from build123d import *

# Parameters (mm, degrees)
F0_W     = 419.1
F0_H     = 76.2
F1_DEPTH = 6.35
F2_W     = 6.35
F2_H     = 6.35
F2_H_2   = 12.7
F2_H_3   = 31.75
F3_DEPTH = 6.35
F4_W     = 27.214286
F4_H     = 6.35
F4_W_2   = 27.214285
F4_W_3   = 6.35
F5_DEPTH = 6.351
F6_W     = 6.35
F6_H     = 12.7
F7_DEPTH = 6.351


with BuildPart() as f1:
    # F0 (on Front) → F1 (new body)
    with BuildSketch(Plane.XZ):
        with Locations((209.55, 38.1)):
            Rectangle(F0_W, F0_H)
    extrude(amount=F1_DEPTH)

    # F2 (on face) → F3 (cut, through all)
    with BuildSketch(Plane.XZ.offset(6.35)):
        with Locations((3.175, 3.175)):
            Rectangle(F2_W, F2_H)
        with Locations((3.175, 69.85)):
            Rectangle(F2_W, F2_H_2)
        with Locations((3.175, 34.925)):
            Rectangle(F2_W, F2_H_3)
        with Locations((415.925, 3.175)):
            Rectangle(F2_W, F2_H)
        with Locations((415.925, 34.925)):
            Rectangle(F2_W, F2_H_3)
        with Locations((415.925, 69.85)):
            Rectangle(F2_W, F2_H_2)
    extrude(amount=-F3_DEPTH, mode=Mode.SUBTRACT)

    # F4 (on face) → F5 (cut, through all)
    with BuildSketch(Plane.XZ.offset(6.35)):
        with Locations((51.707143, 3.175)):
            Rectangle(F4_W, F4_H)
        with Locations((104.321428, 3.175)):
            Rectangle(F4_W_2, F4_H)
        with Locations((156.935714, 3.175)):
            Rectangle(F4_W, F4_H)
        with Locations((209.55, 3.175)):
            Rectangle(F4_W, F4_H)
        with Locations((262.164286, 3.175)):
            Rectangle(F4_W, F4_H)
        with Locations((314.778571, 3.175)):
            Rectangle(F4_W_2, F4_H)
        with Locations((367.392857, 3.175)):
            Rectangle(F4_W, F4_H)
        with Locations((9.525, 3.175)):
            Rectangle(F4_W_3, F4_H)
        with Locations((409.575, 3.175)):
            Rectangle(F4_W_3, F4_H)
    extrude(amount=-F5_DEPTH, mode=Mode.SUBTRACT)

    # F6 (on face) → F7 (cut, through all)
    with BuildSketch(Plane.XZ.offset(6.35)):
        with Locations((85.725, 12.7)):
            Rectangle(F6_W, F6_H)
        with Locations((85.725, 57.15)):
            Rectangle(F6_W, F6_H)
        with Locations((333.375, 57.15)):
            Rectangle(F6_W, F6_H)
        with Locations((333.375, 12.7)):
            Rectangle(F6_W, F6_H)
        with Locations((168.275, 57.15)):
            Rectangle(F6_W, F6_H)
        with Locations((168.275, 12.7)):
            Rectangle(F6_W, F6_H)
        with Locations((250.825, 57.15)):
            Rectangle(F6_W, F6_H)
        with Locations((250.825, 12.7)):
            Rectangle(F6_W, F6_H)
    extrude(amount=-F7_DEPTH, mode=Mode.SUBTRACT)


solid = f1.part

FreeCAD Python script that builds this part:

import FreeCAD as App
import Part
import Sketcher
from FreeCAD import Vector
Q = App.Units.Quantity

doc = App.newDocument("Part")
body = doc.addObject("PartDesign::Body", "Body")

# Sketch on XZ plane
sketch1 = body.newObject("Sketcher::SketchObject", "Sketch")
sketch1.AttachmentSupport = (doc.getObject("XZ_Plane"), [""])
sketch1.MapMode = "FlatFace"
sketch1.addGeometry([
    Part.LineSegment(Vector(0, 76, 0), Vector(0, 0, 0)),
    Part.LineSegment(Vector(0, 0, 0), Vector(419, 0, 0)),
    Part.LineSegment(Vector(419, 0, 0), Vector(419, 76, 0)),
    Part.LineSegment(Vector(419, 76, 0), Vector(0, 76, 0)),
], False)
sketch1.addConstraint([
    Sketcher.Constraint("Coincident", 0, 2, 1, 1),
    Sketcher.Constraint("Coincident", 1, 2, 2, 1),
    Sketcher.Constraint("Coincident", 2, 2, 3, 1),
    Sketcher.Constraint("Coincident", 3, 2, 0, 1),
    Sketcher.Constraint("Vertical", 0),
    Sketcher.Constraint("Horizontal", 1),
    Sketcher.Constraint("Vertical", 2),
    Sketcher.Constraint("Horizontal", 3),
    Sketcher.Constraint("Coincident", 0, 2, -1, 1),
    Sketcher.Constraint("DistanceY", 0, 2, 0, 1, Q("3 in")),
    Sketcher.Constraint("DistanceX", 1, 1, 1, 2, Q("16.5 in")),
])
pad1 = body.newObject("PartDesign::Pad", "Pad")
pad1.Profile = sketch1
pad1.Length = Q("0.25 in")

# Sketch on XZ plane
sketch2 = body.newObject("Sketcher::SketchObject", "Sketch001")
sketch2.AttachmentSupport = (doc.getObject("XZ_Plane"), [""])
sketch2.MapMode = "FlatFace"
sketch2.AttachmentOffset = App.Placement(Vector(0, 0, 0.25 * 25.4), App.Rotation())
sketch2.addGeometry([
    Part.LineSegment(Vector(0, 6, 0), Vector(0, 0, 0)),  # 0
    Part.LineSegment(Vector(0, 0, 0), Vector(6, 0, 0)),  # 1
    Part.LineSegment(Vector(6, 0, 0), Vector(6, 6, 0)),  # 2
    Part.LineSegment(Vector(6, 6, 0), Vector(0, 6, 0)),  # 3
    Part.LineSegment(Vector(0, 76, 0), Vector(0, 64, 0)),  # 4
    Part.LineSegment(Vector(0, 64, 0), Vector(6, 64, 0)),  # 5
    Part.LineSegment(Vector(6, 64, 0), Vector(6, 76, 0)),  # 6
    Part.LineSegment(Vector(6, 76, 0), Vector(0, 76, 0)),  # 7
    Part.LineSegment(Vector(0, 51, 0), Vector(0, 19, 0)),  # 8
    Part.LineSegment(Vector(0, 19, 0), Vector(6, 19, 0)),  # 9
    Part.LineSegment(Vector(6, 19, 0), Vector(6, 51, 0)),  # 10
    Part.LineSegment(Vector(6, 51, 0), Vector(0, 51, 0)),  # 11
    Part.LineSegment(Vector(413, 6, 0), Vector(413, 0, 0)),  # 12
    Part.LineSegment(Vector(413, 0, 0), Vector(419, 0, 0)),  # 13
    Part.LineSegment(Vector(419, 0, 0), Vector(419, 6, 0)),  # 14
    Part.LineSegment(Vector(419, 6, 0), Vector(413, 6, 0)),  # 15
    Part.LineSegment(Vector(413, 51, 0), Vector(413, 19, 0)),  # 16
    Part.LineSegment(Vector(413, 19, 0), Vector(419, 19, 0)),  # 17
    Part.LineSegment(Vector(419, 19, 0), Vector(419, 51, 0)),  # 18
    Part.LineSegment(Vector(419, 51, 0), Vector(413, 51, 0)),  # 19
    Part.LineSegment(Vector(413, 76, 0), Vector(413, 64, 0)),  # 20
    Part.LineSegment(Vector(413, 64, 0), Vector(419, 64, 0)),  # 21
    Part.LineSegment(Vector(419, 64, 0), Vector(419, 76, 0)),  # 22
    Part.LineSegment(Vector(419, 76, 0), Vector(413, 76, 0)),  # 23
], False)
sketch2.addConstraint([
    Sketcher.Constraint("Coincident", 0, 2, 1, 1),
    Sketcher.Constraint("Coincident", 1, 2, 2, 1),
    Sketcher.Constraint("Coincident", 2, 2, 3, 1),
    Sketcher.Constraint("Coincident", 3, 2, 0, 1),
    Sketcher.Constraint("Coincident", 4, 2, 5, 1),
    Sketcher.Constraint("Coincident", 5, 2, 6, 1),
    Sketcher.Constraint("Coincident", 6, 2, 7, 1),
    Sketcher.Constraint("Coincident", 7, 2, 4, 1),
    Sketcher.Constraint("Coincident", 8, 2, 9, 1),
    Sketcher.Constraint("Coincident", 9, 2, 10, 1),
    Sketcher.Constraint("Coincident", 10, 2, 11, 1),
    Sketcher.Constraint("Coincident", 11, 2, 8, 1),
    Sketcher.Constraint("Coincident", 12, 2, 13, 1),
    Sketcher.Constraint("Coincident", 13, 2, 14, 1),
    Sketcher.Constraint("Coincident", 14, 2, 15, 1),
    Sketcher.Constraint("Coincident", 15, 2, 12, 1),
    Sketcher.Constraint("Coincident", 16, 2, 17, 1),
    Sketcher.Constraint("Coincident", 17, 2, 18, 1),
    Sketcher.Constraint("Coincident", 18, 2, 19, 1),
    Sketcher.Constraint("Coincident", 19, 2, 16, 1),
    Sketcher.Constraint("Coincident", 20, 2, 21, 1),
    Sketcher.Constraint("Coincident", 21, 2, 22, 1),
    Sketcher.Constraint("Coincident", 22, 2, 23, 1),
    Sketcher.Constraint("Coincident", 23, 2, 20, 1),
    Sketcher.Constraint("Vertical", 0),
    Sketcher.Constraint("Horizontal", 1),
    Sketcher.Constraint("Vertical", 2),
    Sketcher.Constraint("Horizontal", 3),
    Sketcher.Constraint("Vertical", 4),
    Sketcher.Constraint("Horizontal", 5),
    Sketcher.Constraint("Vertical", 6),
    Sketcher.Constraint("Horizontal", 7),
    Sketcher.Constraint("Vertical", 8),
    Sketcher.Constraint("Horizontal", 9),
    Sketcher.Constraint("Vertical", 10),
    Sketcher.Constraint("Horizontal", 11),
    Sketcher.Constraint("Vertical", 12),
    Sketcher.Constraint("Horizontal", 13),
    Sketcher.Constraint("Vertical", 14),
    Sketcher.Constraint("Horizontal", 15),
    Sketcher.Constraint("Vertical", 16),
    Sketcher.Constraint("Horizontal", 17),
    Sketcher.Constraint("Vertical", 18),
    Sketcher.Constraint("Horizontal", 19),
    Sketcher.Constraint("Vertical", 20),
    Sketcher.Constraint("Horizontal", 21),
    Sketcher.Constraint("Vertical", 22),
    Sketcher.Constraint("Horizontal", 23),
    Sketcher.Constraint("Coincident", 0, 2, -1, 1),
    Sketcher.Constraint("PointOnObject", 4, 2, -2),
    Sketcher.Constraint("PointOnObject", 8, 2, -2),
    Sketcher.Constraint("PointOnObject", 12, 2, -1),
    Sketcher.Constraint("Horizontal", 3, 2, 14, 2),
    Sketcher.Constraint("Horizontal", 9, 2, 16, 2),
    Sketcher.Constraint("Horizontal", 11, 2, 18, 2),
    Sketcher.Constraint("Horizontal", 5, 2, 20, 2),
    Sketcher.Constraint("Horizontal", 7, 2, 22, 2),
    Sketcher.Constraint("Vertical", 2, 2, 5, 2),
    Sketcher.Constraint("Vertical", 6, 2, 9, 2),
    Sketcher.Constraint("Vertical", 15, 2, 16, 2),
    Sketcher.Constraint("Vertical", 14, 2, 17, 2),
    Sketcher.Constraint("Vertical", 19, 2, 20, 2),
    Sketcher.Constraint("Vertical", 18, 2, 21, 2),
    Sketcher.Constraint("Equal", 11, 13),
    Sketcher.Constraint("Equal", 23, 0),
    Sketcher.Constraint("DistanceY", 4, 2, 4, 1, Q("0.5 in")),
    Sketcher.Constraint("DistanceY", -1, 1, 6, 2, Q("3 in")),
    Sketcher.Constraint("DistanceY", -1, 1, 10, 2, Q("2 in")),
    Sketcher.Constraint("DistanceX", 1, 2, 12, 2, Q("16 in")),
    Sketcher.Constraint("DistanceX", 1, 1, 1, 2, Q("0.25 in")),
    Sketcher.Constraint("DistanceY", 8, 2, 8, 1, Q("1.25 in")),
])
pocket1 = body.newObject("PartDesign::Pocket", "Pocket")
pocket1.Profile = sketch2
pocket1.Type = "ThroughAll"

# Sketch on XZ plane
sketch3 = body.newObject("Sketcher::SketchObject", "Sketch002")
sketch3.AttachmentSupport = (doc.getObject("XZ_Plane"), [""])
sketch3.MapMode = "FlatFace"
sketch3.AttachmentOffset = App.Placement(Vector(0, 0, 0.25 * 25.4), App.Rotation())
sketch3.addGeometry([
    Part.LineSegment(Vector(38, 6, 0), Vector(38, 0, 0)),  # 0
    Part.LineSegment(Vector(38, 0, 0), Vector(65, 0, 0)),  # 1
    Part.LineSegment(Vector(65, 0, 0), Vector(65, 6, 0)),  # 2
    Part.LineSegment(Vector(65, 6, 0), Vector(38, 6, 0)),  # 3
    Part.LineSegment(Vector(91, 6, 0), Vector(91, 0, 0)),  # 4
    Part.LineSegment(Vector(91, 0, 0), Vector(118, 0, 0)),  # 5
    Part.LineSegment(Vector(118, 0, 0), Vector(118, 6, 0)),  # 6
    Part.LineSegment(Vector(118, 6, 0), Vector(91, 6, 0)),  # 7
    Part.LineSegment(Vector(143, 6, 0), Vector(143, 0, 0)),  # 8
    Part.LineSegment(Vector(143, 0, 0), Vector(171, 0, 0)),  # 9
    Part.LineSegment(Vector(171, 0, 0), Vector(171, 6, 0)),  # 10
    Part.LineSegment(Vector(171, 6, 0), Vector(143, 6, 0)),  # 11
    Part.LineSegment(Vector(196, 6, 0), Vector(196, 0, 0)),  # 12
    Part.LineSegment(Vector(196, 0, 0), Vector(223, 0, 0)),  # 13
    Part.LineSegment(Vector(223, 0, 0), Vector(223, 6, 0)),  # 14
    Part.LineSegment(Vector(223, 6, 0), Vector(196, 6, 0)),  # 15
    Part.LineSegment(Vector(249, 6, 0), Vector(249, 0, 0)),  # 16
    Part.LineSegment(Vector(249, 0, 0), Vector(276, 0, 0)),  # 17
    Part.LineSegment(Vector(276, 0, 0), Vector(276, 6, 0)),  # 18
    Part.LineSegment(Vector(276, 6, 0), Vector(249, 6, 0)),  # 19
    Part.LineSegment(Vector(301, 6, 0), Vector(301, 0, 0)),  # 20
    Part.LineSegment(Vector(301, 0, 0), Vector(328, 0, 0)),  # 21
    Part.LineSegment(Vector(328, 0, 0), Vector(328, 6, 0)),  # 22
    Part.LineSegment(Vector(328, 6, 0), Vector(301, 6, 0)),  # 23
    Part.LineSegment(Vector(354, 6, 0), Vector(354, 0, 0)),  # 24
    Part.LineSegment(Vector(354, 0, 0), Vector(381, 0, 0)),  # 25
    Part.LineSegment(Vector(381, 0, 0), Vector(381, 6, 0)),  # 26
    Part.LineSegment(Vector(381, 6, 0), Vector(354, 6, 0)),  # 27
    Part.LineSegment(Vector(6, 6, 0), Vector(6, 0, 0)),  # 28
    Part.LineSegment(Vector(6, 0, 0), Vector(13, 0, 0)),  # 29
    Part.LineSegment(Vector(13, 0, 0), Vector(13, 6, 0)),  # 30
    Part.LineSegment(Vector(13, 6, 0), Vector(6, 6, 0)),  # 31
    Part.LineSegment(Vector(406, 6, 0), Vector(406, 0, 0)),  # 32
    Part.LineSegment(Vector(406, 0, 0), Vector(413, 0, 0)),  # 33
    Part.LineSegment(Vector(413, 0, 0), Vector(413, 6, 0)),  # 34
    Part.LineSegment(Vector(413, 6, 0), Vector(406, 6, 0)),  # 35
], False)
sketch3.addConstraint([
    Sketcher.Constraint("Coincident", 0, 2, 1, 1),
    Sketcher.Constraint("Coincident", 1, 2, 2, 1),
    Sketcher.Constraint("Coincident", 2, 2, 3, 1),
    Sketcher.Constraint("Coincident", 3, 2, 0, 1),
    Sketcher.Constraint("Coincident", 4, 2, 5, 1),
    Sketcher.Constraint("Coincident", 5, 2, 6, 1),
    Sketcher.Constraint("Coincident", 6, 2, 7, 1),
    Sketcher.Constraint("Coincident", 7, 2, 4, 1),
    Sketcher.Constraint("Coincident", 8, 2, 9, 1),
    Sketcher.Constraint("Coincident", 9, 2, 10, 1),
    Sketcher.Constraint("Coincident", 10, 2, 11, 1),
    Sketcher.Constraint("Coincident", 11, 2, 8, 1),
    Sketcher.Constraint("Coincident", 12, 2, 13, 1),
    Sketcher.Constraint("Coincident", 13, 2, 14, 1),
    Sketcher.Constraint("Coincident", 14, 2, 15, 1),
    Sketcher.Constraint("Coincident", 15, 2, 12, 1),
    Sketcher.Constraint("Coincident", 16, 2, 17, 1),
    Sketcher.Constraint("Coincident", 17, 2, 18, 1),
    Sketcher.Constraint("Coincident", 18, 2, 19, 1),
    Sketcher.Constraint("Coincident", 19, 2, 16, 1),
    Sketcher.Constraint("Coincident", 20, 2, 21, 1),
    Sketcher.Constraint("Coincident", 21, 2, 22, 1),
    Sketcher.Constraint("Coincident", 22, 2, 23, 1),
    Sketcher.Constraint("Coincident", 23, 2, 20, 1),
    Sketcher.Constraint("Coincident", 24, 2, 25, 1),
    Sketcher.Constraint("Coincident", 25, 2, 26, 1),
    Sketcher.Constraint("Coincident", 26, 2, 27, 1),
    Sketcher.Constraint("Coincident", 27, 2, 24, 1),
    Sketcher.Constraint("Coincident", 28, 2, 29, 1),
    Sketcher.Constraint("Coincident", 29, 2, 30, 1),
    Sketcher.Constraint("Coincident", 30, 2, 31, 1),
    Sketcher.Constraint("Coincident", 31, 2, 28, 1),
    Sketcher.Constraint("Coincident", 32, 2, 33, 1),
    Sketcher.Constraint("Coincident", 33, 2, 34, 1),
    Sketcher.Constraint("Coincident", 34, 2, 35, 1),
    Sketcher.Constraint("Coincident", 35, 2, 32, 1),
    Sketcher.Constraint("Vertical", 0),
    Sketcher.Constraint("Horizontal", 1),
    Sketcher.Constraint("Vertical", 2),
    Sketcher.Constraint("Horizontal", 3),
    Sketcher.Constraint("Vertical", 4),
    Sketcher.Constraint("Horizontal", 5),
    Sketcher.Constraint("Vertical", 6),
    Sketcher.Constraint("Horizontal", 7),
    Sketcher.Constraint("Vertical", 8),
    Sketcher.Constraint("Horizontal", 9),
    Sketcher.Constraint("Vertical", 10),
    Sketcher.Constraint("Horizontal", 11),
    Sketcher.Constraint("Vertical", 12),
    Sketcher.Constraint("Horizontal", 13),
    Sketcher.Constraint("Vertical", 14),
    Sketcher.Constraint("Horizontal", 15),
    Sketcher.Constraint("Vertical", 16),
    Sketcher.Constraint("Horizontal", 17),
    Sketcher.Constraint("Vertical", 18),
    Sketcher.Constraint("Horizontal", 19),
    Sketcher.Constraint("Vertical", 20),
    Sketcher.Constraint("Horizontal", 21),
    Sketcher.Constraint("Vertical", 22),
    Sketcher.Constraint("Horizontal", 23),
    Sketcher.Constraint("Vertical", 24),
    Sketcher.Constraint("Horizontal", 25),
    Sketcher.Constraint("Vertical", 26),
    Sketcher.Constraint("Horizontal", 27),
    Sketcher.Constraint("Vertical", 28),
    Sketcher.Constraint("Horizontal", 29),
    Sketcher.Constraint("Vertical", 30),
    Sketcher.Constraint("Horizontal", 31),
    Sketcher.Constraint("Vertical", 32),
    Sketcher.Constraint("Horizontal", 33),
    Sketcher.Constraint("Vertical", 34),
    Sketcher.Constraint("Horizontal", 35),
    Sketcher.Constraint("PointOnObject", 0, 2, -1),
    Sketcher.Constraint("PointOnObject", 4, 2, -1),
    Sketcher.Constraint("PointOnObject", 8, 2, -1),
    Sketcher.Constraint("PointOnObject", 12, 2, -1),
    Sketcher.Constraint("PointOnObject", 16, 2, -1),
    Sketcher.Constraint("PointOnObject", 20, 2, -1),
    Sketcher.Constraint("PointOnObject", 24, 2, -1),
    Sketcher.Constraint("PointOnObject", 28, 2, -1),
    Sketcher.Constraint("PointOnObject", 32, 2, -1),
    Sketcher.Constraint("Horizontal", 3, 2, 6, 2),
    Sketcher.Constraint("Horizontal", 7, 2, 10, 2),
    Sketcher.Constraint("Horizontal", 11, 2, 14, 2),
    Sketcher.Constraint("Horizontal", 15, 2, 18, 2),
    Sketcher.Constraint("Horizontal", 19, 2, 22, 2),
    Sketcher.Constraint("Horizontal", 23, 2, 26, 2),
    Sketcher.Constraint("Horizontal", 27, 2, 30, 2),
    Sketcher.Constraint("Horizontal", 31, 2, 34, 2),
    Sketcher.Constraint("Equal", 3, 5),
    Sketcher.Constraint("Equal", 7, 9),
    Sketcher.Constraint("Equal", 11, 13),
    Sketcher.Constraint("Equal", 15, 17),
    Sketcher.Constraint("Equal", 19, 21),
    Sketcher.Constraint("Equal", 23, 25),
    Sketcher.Constraint("Equal", 31, 33),
    Sketcher.Constraint("Equal", 35, 0),
    Sketcher.Constraint("DistanceX", -1, 1, 25, 2, Q("15 in")),
    Sketcher.Constraint("DistanceX", -1, 1, 32, 2, Q("16 in")),
    Sketcher.Constraint("DistanceX", 1, 2, 4, 2, Q("1 in")),
    Sketcher.Constraint("DistanceX", 5, 2, 8, 2, Q("1 in")),
    Sketcher.Constraint("DistanceX", 9, 2, 12, 2, Q("1 in")),
    Sketcher.Constraint("DistanceX", 13, 2, 16, 2, Q("1 in")),
    Sketcher.Constraint("DistanceX", 17, 2, 20, 2, Q("1 in")),
    Sketcher.Constraint("DistanceX", 21, 2, 24, 2, Q("1 in")),
    Sketcher.Constraint("DistanceX", 29, 2, 0, 2, Q("1 in")),
    Sketcher.Constraint("DistanceX", 29, 1, 29, 2, Q("0.25 in")),
    Sketcher.Constraint("DistanceX", -1, 1, 0, 2, Q("1.5 in")),
])
pocket2 = body.newObject("PartDesign::Pocket", "Pocket001")
pocket2.Profile = sketch3
pocket2.Type = "ThroughAll"

# Sketch on XZ plane
sketch4 = body.newObject("Sketcher::SketchObject", "Sketch003")
sketch4.AttachmentSupport = (doc.getObject("XZ_Plane"), [""])
sketch4.MapMode = "FlatFace"
sketch4.AttachmentOffset = App.Placement(Vector(0, 0, 0.25 * 25.4), App.Rotation())
sketch4.addGeometry([
    Part.LineSegment(Vector(83, 19, 0), Vector(83, 6, 0)),  # 0
    Part.LineSegment(Vector(83, 6, 0), Vector(89, 6, 0)),  # 1
    Part.LineSegment(Vector(89, 6, 0), Vector(89, 19, 0)),  # 2
    Part.LineSegment(Vector(89, 19, 0), Vector(83, 19, 0)),  # 3
    Part.LineSegment(Vector(83, 64, 0), Vector(83, 51, 0)),  # 4
    Part.LineSegment(Vector(83, 51, 0), Vector(89, 51, 0)),  # 5
    Part.LineSegment(Vector(89, 51, 0), Vector(89, 64, 0)),  # 6
    Part.LineSegment(Vector(89, 64, 0), Vector(83, 64, 0)),  # 7
    Part.LineSegment(Vector(330, 64, 0), Vector(330, 51, 0)),  # 8
    Part.LineSegment(Vector(330, 51, 0), Vector(337, 51, 0)),  # 9
    Part.LineSegment(Vector(337, 51, 0), Vector(337, 64, 0)),  # 10
    Part.LineSegment(Vector(337, 64, 0), Vector(330, 64, 0)),  # 11
    Part.LineSegment(Vector(330, 19, 0), Vector(330, 6, 0)),  # 12
    Part.LineSegment(Vector(330, 6, 0), Vector(337, 6, 0)),  # 13
    Part.LineSegment(Vector(337, 6, 0), Vector(337, 19, 0)),  # 14
    Part.LineSegment(Vector(337, 19, 0), Vector(330, 19, 0)),  # 15
    Part.LineSegment(Vector(165, 64, 0), Vector(165, 51, 0)),  # 16
    Part.LineSegment(Vector(165, 51, 0), Vector(171, 51, 0)),  # 17
    Part.LineSegment(Vector(171, 51, 0), Vector(171, 64, 0)),  # 18
    Part.LineSegment(Vector(171, 64, 0), Vector(165, 64, 0)),  # 19
    Part.LineSegment(Vector(165, 19, 0), Vector(165, 6, 0)),  # 20
    Part.LineSegment(Vector(165, 6, 0), Vector(171, 6, 0)),  # 21
    Part.LineSegment(Vector(171, 6, 0), Vector(171, 19, 0)),  # 22
    Part.LineSegment(Vector(171, 19, 0), Vector(165, 19, 0)),  # 23
    Part.LineSegment(Vector(248, 64, 0), Vector(248, 51, 0)),  # 24
    Part.LineSegment(Vector(248, 51, 0), Vector(254, 51, 0)),  # 25
    Part.LineSegment(Vector(254, 51, 0), Vector(254, 64, 0)),  # 26
    Part.LineSegment(Vector(254, 64, 0), Vector(248, 64, 0)),  # 27
    Part.LineSegment(Vector(248, 19, 0), Vector(248, 6, 0)),  # 28
    Part.LineSegment(Vector(248, 6, 0), Vector(254, 6, 0)),  # 29
    Part.LineSegment(Vector(254, 6, 0), Vector(254, 19, 0)),  # 30
    Part.LineSegment(Vector(254, 19, 0), Vector(248, 19, 0)),  # 31
], False)
sketch4.addConstraint([
    Sketcher.Constraint("Coincident", 0, 2, 1, 1),
    Sketcher.Constraint("Coincident", 1, 2, 2, 1),
    Sketcher.Constraint("Coincident", 2, 2, 3, 1),
    Sketcher.Constraint("Coincident", 3, 2, 0, 1),
    Sketcher.Constraint("Coincident", 4, 2, 5, 1),
    Sketcher.Constraint("Coincident", 5, 2, 6, 1),
    Sketcher.Constraint("Coincident", 6, 2, 7, 1),
    Sketcher.Constraint("Coincident", 7, 2, 4, 1),
    Sketcher.Constraint("Coincident", 8, 2, 9, 1),
    Sketcher.Constraint("Coincident", 9, 2, 10, 1),
    Sketcher.Constraint("Coincident", 10, 2, 11, 1),
    Sketcher.Constraint("Coincident", 11, 2, 8, 1),
    Sketcher.Constraint("Coincident", 12, 2, 13, 1),
    Sketcher.Constraint("Coincident", 13, 2, 14, 1),
    Sketcher.Constraint("Coincident", 14, 2, 15, 1),
    Sketcher.Constraint("Coincident", 15, 2, 12, 1),
    Sketcher.Constraint("Coincident", 16, 2, 17, 1),
    Sketcher.Constraint("Coincident", 17, 2, 18, 1),
    Sketcher.Constraint("Coincident", 18, 2, 19, 1),
    Sketcher.Constraint("Coincident", 19, 2, 16, 1),
    Sketcher.Constraint("Coincident", 20, 2, 21, 1),
    Sketcher.Constraint("Coincident", 21, 2, 22, 1),
    Sketcher.Constraint("Coincident", 22, 2, 23, 1),
    Sketcher.Constraint("Coincident", 23, 2, 20, 1),
    Sketcher.Constraint("Coincident", 24, 2, 25, 1),
    Sketcher.Constraint("Coincident", 25, 2, 26, 1),
    Sketcher.Constraint("Coincident", 26, 2, 27, 1),
    Sketcher.Constraint("Coincident", 27, 2, 24, 1),
    Sketcher.Constraint("Coincident", 28, 2, 29, 1),
    Sketcher.Constraint("Coincident", 29, 2, 30, 1),
    Sketcher.Constraint("Coincident", 30, 2, 31, 1),
    Sketcher.Constraint("Coincident", 31, 2, 28, 1),
    Sketcher.Constraint("Vertical", 0),
    Sketcher.Constraint("Horizontal", 1),
    Sketcher.Constraint("Vertical", 2),
    Sketcher.Constraint("Horizontal", 3),
    Sketcher.Constraint("Vertical", 4),
    Sketcher.Constraint("Horizontal", 5),
    Sketcher.Constraint("Vertical", 6),
    Sketcher.Constraint("Horizontal", 7),
    Sketcher.Constraint("Vertical", 8),
    Sketcher.Constraint("Horizontal", 9),
    Sketcher.Constraint("Vertical", 10),
    Sketcher.Constraint("Horizontal", 11),
    Sketcher.Constraint("Vertical", 12),
    Sketcher.Constraint("Horizontal", 13),
    Sketcher.Constraint("Vertical", 14),
    Sketcher.Constraint("Horizontal", 15),
    Sketcher.Constraint("Vertical", 16),
    Sketcher.Constraint("Horizontal", 17),
    Sketcher.Constraint("Vertical", 18),
    Sketcher.Constraint("Horizontal", 19),
    Sketcher.Constraint("Vertical", 20),
    Sketcher.Constraint("Horizontal", 21),
    Sketcher.Constraint("Vertical", 22),
    Sketcher.Constraint("Horizontal", 23),
    Sketcher.Constraint("Vertical", 24),
    Sketcher.Constraint("Horizontal", 25),
    Sketcher.Constraint("Vertical", 26),
    Sketcher.Constraint("Horizontal", 27),
    Sketcher.Constraint("Vertical", 28),
    Sketcher.Constraint("Horizontal", 29),
    Sketcher.Constraint("Vertical", 30),
    Sketcher.Constraint("Horizontal", 31),
    Sketcher.Constraint("Horizontal", 5, 2, 8, 2),
    Sketcher.Constraint("Horizontal", 7, 2, 10, 2),
    Sketcher.Constraint("Horizontal", 1, 2, 12, 2),
    Sketcher.Constraint("Horizontal", 3, 2, 14, 2),
    Sketcher.Constraint("Horizontal", 9, 2, 16, 2),
    Sketcher.Constraint("Horizontal", 11, 2, 18, 2),
    Sketcher.Constraint("Horizontal", 13, 2, 20, 2),
    Sketcher.Constraint("Horizontal", 15, 2, 22, 2),
    Sketcher.Constraint("Horizontal", 17, 2, 24, 2),
    Sketcher.Constraint("Horizontal", 19, 2, 26, 2),
    Sketcher.Constraint("Horizontal", 21, 2, 28, 2),
    Sketcher.Constraint("Horizontal", 23, 2, 30, 2),
    Sketcher.Constraint("Vertical", 3, 2, 4, 2),
    Sketcher.Constraint("Vertical", 2, 2, 5, 2),
    Sketcher.Constraint("Vertical", 11, 2, 12, 2),
    Sketcher.Constraint("Vertical", 10, 2, 13, 2),
    Sketcher.Constraint("Vertical", 19, 2, 20, 2),
    Sketcher.Constraint("Vertical", 18, 2, 21, 2),
    Sketcher.Constraint("Vertical", 27, 2, 28, 2),
    Sketcher.Constraint("Vertical", 26, 2, 29, 2),
    Sketcher.Constraint("Equal", 7, 9),
    Sketcher.Constraint("Equal", 15, 17),
    Sketcher.Constraint("Equal", 23, 25),
    Sketcher.Constraint("Equal", 2, 4),
    Sketcher.Constraint("DistanceY", 0, 2, 0, 1, Q("0.5 in")),
    Sketcher.Constraint("DistanceY", -1, 1, 4, 2, Q("2 in")),
    Sketcher.Constraint("DistanceX", -1, 1, 8, 2, Q("13 in")),
    Sketcher.Constraint("DistanceX", -1, 1, 25, 2, Q("10 in")),
    Sketcher.Constraint("DistanceX", 5, 2, 16, 2, Q("3 in")),
    Sketcher.Constraint("DistanceX", 17, 2, 24, 2, Q("3 in")),
    Sketcher.Constraint("DistanceX", 1, 1, 1, 2, Q("0.25 in")),
    Sketcher.Constraint("DistanceY", -1, 1, 0, 2, Q("0.25 in")),
])
pocket3 = body.newObject("PartDesign::Pocket", "Pocket002")
pocket3.Profile = sketch4
pocket3.Type = "ThroughAll"

doc.recompute()
